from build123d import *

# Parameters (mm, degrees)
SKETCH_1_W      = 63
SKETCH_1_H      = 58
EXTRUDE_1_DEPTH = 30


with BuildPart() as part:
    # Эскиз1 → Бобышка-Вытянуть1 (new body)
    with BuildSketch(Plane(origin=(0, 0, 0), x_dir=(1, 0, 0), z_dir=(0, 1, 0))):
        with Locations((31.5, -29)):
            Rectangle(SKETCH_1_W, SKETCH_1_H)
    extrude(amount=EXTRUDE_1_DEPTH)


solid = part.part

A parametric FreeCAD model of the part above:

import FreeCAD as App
import Part
import Sketcher
from FreeCAD import Vector


def add_polygon(sketch, points):
    """Adds a closed chain of lines whose ends are joined by coincident constraints."""
    first, n = sketch.GeometryCount, len(points)
    for a, b in zip(points, points[1:] + points[:1]):
        sketch.addGeometry(Part.LineSegment(App.Vector(*a, 0), App.Vector(*b, 0)), False)
    for i in range(n):
        sketch.addConstraint(Sketcher.Constraint("Coincident", first + i, 2, first + (i + 1) % n, 1))

doc = App.newDocument("Part")
body = doc.addObject("PartDesign::Body", "Body")

# Sketch on XZ plane
sketch1 = doc.addObject("Sketcher::SketchObject", "Sketch")
body.addObject(sketch1)
sketch1.AttachmentSupport = (doc.XZ_Plane, [""])
sketch1.MapMode = "FlatFace"
add_polygon(sketch1, [(0, 0), (0, 58), (63, 58), (63, 0)])  # lines 0-3
sketch1.addConstraint(Sketcher.Constraint("Vertical", 0))
sketch1.addConstraint(Sketcher.Constraint("Horizontal", 1))
sketch1.addConstraint(Sketcher.Constraint("Vertical", 2))
sketch1.addConstraint(Sketcher.Constraint("Horizontal", 3))
sketch1.addConstraint(Sketcher.Constraint("Coincident", 3, 2, -1, 1))
sketch1.addConstraint(Sketcher.Constraint("DistanceX", 1, 1, 1, 2, 63.0))
sketch1.addConstraint(Sketcher.Constraint("DistanceY", 0, 1, 0, 2, 58.0))
pad1 = doc.addObject("PartDesign::Pad", "Pad")
body.addObject(pad1)
pad1.Profile = sketch1
pad1.Length = 30
pad1.Reversed = True

doc.recompute()
